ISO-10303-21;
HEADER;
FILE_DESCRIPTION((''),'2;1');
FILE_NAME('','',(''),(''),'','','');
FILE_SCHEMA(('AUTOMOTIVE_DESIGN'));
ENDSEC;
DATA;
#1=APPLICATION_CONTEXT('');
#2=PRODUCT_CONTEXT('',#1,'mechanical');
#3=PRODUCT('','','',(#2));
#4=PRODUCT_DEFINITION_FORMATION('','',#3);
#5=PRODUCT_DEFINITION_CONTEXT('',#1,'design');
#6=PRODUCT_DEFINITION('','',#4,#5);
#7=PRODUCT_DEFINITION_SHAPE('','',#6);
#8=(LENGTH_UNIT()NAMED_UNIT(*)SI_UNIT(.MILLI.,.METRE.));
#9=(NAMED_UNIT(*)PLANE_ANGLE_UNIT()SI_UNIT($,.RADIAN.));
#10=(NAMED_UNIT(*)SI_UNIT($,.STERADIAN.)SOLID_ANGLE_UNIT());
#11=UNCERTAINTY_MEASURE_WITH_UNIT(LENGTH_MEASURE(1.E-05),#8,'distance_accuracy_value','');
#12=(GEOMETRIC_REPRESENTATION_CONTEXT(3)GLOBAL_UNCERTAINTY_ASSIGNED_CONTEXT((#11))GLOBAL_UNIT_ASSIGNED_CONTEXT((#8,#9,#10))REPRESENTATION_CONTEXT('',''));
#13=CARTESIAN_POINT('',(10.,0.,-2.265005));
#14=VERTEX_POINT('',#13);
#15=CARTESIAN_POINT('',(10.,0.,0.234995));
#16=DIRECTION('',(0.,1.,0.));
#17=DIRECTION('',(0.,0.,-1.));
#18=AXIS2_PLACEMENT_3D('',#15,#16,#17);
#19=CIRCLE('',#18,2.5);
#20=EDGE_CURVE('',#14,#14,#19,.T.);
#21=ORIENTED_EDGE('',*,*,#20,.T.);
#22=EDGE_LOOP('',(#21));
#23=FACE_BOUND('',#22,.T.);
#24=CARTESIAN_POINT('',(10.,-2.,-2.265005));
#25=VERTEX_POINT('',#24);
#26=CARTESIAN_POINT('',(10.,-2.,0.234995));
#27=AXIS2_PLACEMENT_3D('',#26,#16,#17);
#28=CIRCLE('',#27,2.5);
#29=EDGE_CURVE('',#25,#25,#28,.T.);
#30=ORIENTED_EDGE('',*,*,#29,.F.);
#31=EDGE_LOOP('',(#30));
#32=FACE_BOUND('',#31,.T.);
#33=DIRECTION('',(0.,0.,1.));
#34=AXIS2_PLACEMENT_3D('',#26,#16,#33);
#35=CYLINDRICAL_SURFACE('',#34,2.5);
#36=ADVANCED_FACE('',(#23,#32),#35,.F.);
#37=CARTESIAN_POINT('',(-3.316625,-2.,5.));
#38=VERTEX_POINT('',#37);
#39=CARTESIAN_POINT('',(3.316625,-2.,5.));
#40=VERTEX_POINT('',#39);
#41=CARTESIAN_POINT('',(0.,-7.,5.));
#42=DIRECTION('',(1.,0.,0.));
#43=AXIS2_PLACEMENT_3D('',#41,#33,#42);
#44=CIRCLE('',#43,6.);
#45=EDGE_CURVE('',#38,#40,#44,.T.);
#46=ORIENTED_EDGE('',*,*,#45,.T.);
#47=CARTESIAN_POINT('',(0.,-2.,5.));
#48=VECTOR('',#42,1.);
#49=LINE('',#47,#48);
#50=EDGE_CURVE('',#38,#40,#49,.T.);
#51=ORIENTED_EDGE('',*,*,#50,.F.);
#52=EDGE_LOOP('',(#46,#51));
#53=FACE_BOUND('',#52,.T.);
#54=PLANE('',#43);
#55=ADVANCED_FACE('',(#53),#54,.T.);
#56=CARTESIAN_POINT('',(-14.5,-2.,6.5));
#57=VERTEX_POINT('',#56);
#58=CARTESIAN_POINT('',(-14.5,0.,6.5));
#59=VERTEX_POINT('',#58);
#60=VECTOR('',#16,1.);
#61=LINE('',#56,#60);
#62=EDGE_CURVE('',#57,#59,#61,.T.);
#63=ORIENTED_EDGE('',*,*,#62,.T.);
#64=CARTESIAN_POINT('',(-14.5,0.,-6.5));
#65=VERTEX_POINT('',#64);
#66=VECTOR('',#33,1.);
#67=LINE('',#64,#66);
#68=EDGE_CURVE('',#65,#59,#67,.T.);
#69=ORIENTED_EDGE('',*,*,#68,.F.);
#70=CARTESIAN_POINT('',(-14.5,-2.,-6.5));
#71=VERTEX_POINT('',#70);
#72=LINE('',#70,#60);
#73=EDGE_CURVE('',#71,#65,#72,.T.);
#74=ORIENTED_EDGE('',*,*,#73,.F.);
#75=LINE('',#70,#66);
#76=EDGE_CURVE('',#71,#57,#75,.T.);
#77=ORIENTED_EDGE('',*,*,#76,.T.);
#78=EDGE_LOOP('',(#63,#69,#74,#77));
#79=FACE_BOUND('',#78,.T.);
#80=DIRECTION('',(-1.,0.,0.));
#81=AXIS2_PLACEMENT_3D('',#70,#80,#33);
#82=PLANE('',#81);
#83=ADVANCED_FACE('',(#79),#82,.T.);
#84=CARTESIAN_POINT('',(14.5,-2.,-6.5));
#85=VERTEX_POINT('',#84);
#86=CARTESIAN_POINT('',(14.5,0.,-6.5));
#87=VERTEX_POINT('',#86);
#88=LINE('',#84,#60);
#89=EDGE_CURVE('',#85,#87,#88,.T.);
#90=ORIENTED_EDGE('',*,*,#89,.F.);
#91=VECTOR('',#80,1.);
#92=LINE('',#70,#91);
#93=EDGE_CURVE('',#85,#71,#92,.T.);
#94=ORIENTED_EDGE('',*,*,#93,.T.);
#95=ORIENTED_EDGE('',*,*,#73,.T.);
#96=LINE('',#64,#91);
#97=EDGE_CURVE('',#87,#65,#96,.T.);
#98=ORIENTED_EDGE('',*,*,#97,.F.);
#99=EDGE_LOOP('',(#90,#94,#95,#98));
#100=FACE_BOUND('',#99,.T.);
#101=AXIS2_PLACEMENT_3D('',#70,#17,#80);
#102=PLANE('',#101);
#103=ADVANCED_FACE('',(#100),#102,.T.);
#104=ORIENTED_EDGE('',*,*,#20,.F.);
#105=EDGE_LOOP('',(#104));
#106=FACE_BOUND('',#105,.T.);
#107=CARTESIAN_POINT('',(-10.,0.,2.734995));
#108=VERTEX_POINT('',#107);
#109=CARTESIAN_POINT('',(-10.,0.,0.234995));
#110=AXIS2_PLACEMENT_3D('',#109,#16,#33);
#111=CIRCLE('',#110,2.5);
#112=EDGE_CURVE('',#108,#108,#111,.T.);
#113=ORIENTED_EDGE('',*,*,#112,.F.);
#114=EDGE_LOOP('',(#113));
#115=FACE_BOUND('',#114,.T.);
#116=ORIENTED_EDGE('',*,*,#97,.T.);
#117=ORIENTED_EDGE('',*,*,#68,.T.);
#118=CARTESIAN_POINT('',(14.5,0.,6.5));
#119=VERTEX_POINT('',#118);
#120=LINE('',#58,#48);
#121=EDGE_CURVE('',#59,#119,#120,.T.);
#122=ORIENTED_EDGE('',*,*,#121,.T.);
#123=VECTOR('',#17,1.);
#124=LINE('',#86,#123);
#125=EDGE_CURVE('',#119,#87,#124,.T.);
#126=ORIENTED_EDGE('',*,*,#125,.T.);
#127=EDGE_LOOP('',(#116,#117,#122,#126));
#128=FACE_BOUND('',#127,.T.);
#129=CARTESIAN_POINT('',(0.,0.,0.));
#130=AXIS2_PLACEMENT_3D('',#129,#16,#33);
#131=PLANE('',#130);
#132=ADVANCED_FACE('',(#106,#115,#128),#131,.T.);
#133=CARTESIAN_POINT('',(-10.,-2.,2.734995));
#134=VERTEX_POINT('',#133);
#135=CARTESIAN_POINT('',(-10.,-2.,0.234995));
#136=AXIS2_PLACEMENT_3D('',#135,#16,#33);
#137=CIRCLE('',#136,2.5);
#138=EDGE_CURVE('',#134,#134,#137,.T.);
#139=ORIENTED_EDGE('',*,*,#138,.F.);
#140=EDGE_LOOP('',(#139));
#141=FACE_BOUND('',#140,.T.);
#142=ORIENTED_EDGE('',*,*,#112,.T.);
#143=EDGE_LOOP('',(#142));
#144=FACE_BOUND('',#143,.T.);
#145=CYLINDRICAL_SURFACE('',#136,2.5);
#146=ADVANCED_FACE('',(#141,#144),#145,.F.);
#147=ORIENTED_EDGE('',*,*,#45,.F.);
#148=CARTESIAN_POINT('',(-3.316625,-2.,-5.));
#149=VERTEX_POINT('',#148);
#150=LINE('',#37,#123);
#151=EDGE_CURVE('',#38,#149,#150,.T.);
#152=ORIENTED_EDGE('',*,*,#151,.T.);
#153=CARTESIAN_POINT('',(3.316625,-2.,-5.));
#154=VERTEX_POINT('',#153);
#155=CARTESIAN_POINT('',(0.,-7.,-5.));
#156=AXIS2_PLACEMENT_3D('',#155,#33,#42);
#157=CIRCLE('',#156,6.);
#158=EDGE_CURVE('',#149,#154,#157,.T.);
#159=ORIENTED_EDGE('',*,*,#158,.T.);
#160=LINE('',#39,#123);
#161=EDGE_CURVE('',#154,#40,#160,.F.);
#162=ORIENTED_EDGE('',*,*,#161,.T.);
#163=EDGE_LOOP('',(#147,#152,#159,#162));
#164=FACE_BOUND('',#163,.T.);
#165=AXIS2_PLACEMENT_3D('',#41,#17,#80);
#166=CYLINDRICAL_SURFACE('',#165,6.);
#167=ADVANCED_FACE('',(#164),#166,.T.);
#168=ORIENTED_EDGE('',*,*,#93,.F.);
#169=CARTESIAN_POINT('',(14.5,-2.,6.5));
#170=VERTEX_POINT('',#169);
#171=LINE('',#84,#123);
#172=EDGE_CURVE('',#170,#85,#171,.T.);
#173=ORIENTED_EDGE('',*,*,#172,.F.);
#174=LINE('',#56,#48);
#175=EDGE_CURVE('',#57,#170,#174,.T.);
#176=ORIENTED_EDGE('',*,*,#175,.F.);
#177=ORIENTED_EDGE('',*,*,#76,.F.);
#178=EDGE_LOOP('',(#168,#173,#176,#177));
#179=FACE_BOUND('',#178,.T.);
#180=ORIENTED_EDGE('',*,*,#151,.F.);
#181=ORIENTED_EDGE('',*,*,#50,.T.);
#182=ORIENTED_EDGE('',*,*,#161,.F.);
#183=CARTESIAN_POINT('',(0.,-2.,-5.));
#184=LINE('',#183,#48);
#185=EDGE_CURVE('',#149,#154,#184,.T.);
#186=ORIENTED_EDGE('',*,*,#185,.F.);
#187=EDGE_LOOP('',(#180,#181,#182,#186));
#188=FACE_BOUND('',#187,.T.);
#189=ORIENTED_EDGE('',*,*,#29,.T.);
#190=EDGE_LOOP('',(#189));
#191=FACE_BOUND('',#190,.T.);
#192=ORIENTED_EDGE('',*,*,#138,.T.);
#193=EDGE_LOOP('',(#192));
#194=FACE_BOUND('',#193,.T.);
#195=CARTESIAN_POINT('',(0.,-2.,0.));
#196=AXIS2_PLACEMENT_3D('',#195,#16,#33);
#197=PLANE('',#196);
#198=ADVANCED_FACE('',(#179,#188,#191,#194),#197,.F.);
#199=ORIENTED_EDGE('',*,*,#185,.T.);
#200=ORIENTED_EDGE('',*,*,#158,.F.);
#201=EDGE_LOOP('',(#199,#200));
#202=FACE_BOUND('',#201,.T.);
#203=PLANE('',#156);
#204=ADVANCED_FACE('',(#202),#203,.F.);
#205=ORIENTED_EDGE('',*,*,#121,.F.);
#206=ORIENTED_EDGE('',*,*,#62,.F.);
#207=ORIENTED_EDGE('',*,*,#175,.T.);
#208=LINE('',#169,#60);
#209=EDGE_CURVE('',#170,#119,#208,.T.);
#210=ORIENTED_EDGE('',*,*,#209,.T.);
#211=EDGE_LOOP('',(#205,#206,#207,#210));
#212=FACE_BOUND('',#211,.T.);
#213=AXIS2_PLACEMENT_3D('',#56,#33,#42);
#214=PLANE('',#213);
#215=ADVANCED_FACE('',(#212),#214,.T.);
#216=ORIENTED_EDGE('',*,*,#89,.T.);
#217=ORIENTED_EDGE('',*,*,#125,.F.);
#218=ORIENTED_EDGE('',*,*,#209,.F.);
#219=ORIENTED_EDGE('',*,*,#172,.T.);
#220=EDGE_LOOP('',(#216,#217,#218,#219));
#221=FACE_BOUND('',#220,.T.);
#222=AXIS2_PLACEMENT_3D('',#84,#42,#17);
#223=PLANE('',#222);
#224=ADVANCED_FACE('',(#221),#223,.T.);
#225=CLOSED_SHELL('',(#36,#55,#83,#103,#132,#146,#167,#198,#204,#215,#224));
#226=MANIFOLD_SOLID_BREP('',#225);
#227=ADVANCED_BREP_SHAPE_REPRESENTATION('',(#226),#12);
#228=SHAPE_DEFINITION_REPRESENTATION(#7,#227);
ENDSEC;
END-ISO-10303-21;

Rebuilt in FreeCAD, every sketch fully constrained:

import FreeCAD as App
import Part
import Sketcher

V = App.Vector
Q = App.Units.Quantity

doc = App.newDocument("Part")
body = doc.addObject("PartDesign::Body", "Body")

# Sketch on XZ plane
sketch1 = body.newObject("Sketcher::SketchObject", "Sketch")
sketch1.AttachmentSupport = (doc.getObject("XZ_Plane"), [""])
sketch1.MapMode = "FlatFace"
sketch1.addGeometry([
    Part.LineSegment(V(-14, -6, 0), V(-14, 6, 0)),
    Part.LineSegment(V(-14, 6, 0), V(14, 6, 0)),
    Part.LineSegment(V(14, 6, 0), V(14, -6, 0)),
    Part.LineSegment(V(14, -6, 0), V(-14, -6, 0)),
], False)
sketch1.addConstraint([
    Sketcher.Constraint("Coincident", 0, 2, 1, 1),
    Sketcher.Constraint("Coincident", 1, 2, 2, 1),
    Sketcher.Constraint("Coincident", 2, 2, 3, 1),
    Sketcher.Constraint("Coincident", 3, 2, 0, 1),
    Sketcher.Constraint("Vertical", 0),
    Sketcher.Constraint("Horizontal", 1),
    Sketcher.Constraint("Vertical", 2),
    Sketcher.Constraint("Horizontal", 3),
    Sketcher.Constraint("Symmetric", 0, 2, 2, 2, -1, 1),
    Sketcher.Constraint("DistanceX", 1, 1, 1, 2, Q("29 mm")),
    Sketcher.Constraint("DistanceY", 0, 1, 0, 2, Q("13 mm")),
])
pad1 = body.newObject("PartDesign::Pad", "Pad")
pad1.Profile = sketch1
pad1.Length = 2

# Sketch on XZ plane
sketch2 = body.newObject("Sketcher::SketchObject", "Sketch001")
sketch2.AttachmentSupport = (doc.getObject("XZ_Plane"), [""])
sketch2.MapMode = "FlatFace"
sketch2.addGeometry([
    Part.Circle(V(-10, 0.2, 0), V(0, 0, 1), 2.5),
    Part.Circle(V(10, 0.2, 0), V(0, 0, 1), 2.5),
], False)
sketch2.addConstraint([
    Sketcher.Constraint("Equal", 0, 1),
    Sketcher.Constraint("Symmetric", 0, 3, 1, 3, -2),
    Sketcher.Constraint("Diameter", 0, Q("5 mm")),
    Sketcher.Constraint("DistanceX", 0, 3, -1, 1, Q("10 mm")),
    Sketcher.Constraint("DistanceY", -1, 1, 0, 3, Q("0.234995 mm")),
])
pocket1 = body.newObject("PartDesign::Pocket", "Pocket")
pocket1.Profile = sketch2
pocket1.Type = "ThroughAll"
pocket1.Reversed = True

# Sketch on XY plane
sketch3 = body.newObject("Sketcher::SketchObject", "Sketch002")
sketch3.AttachmentSupport = (doc.getObject("XY_Plane"), [""])
sketch3.MapMode = "FlatFace"
sketch3.addGeometry(Part.Circle(V(0, -7, 0), V(0, 0, 1), 6), False)
sketch3.addConstraint([
    Sketcher.Constraint("PointOnObject", 0, 3, -2),
    Sketcher.Constraint("Diameter", 0, Q("12 mm")),
    Sketcher.Constraint("DistanceY", 0, 3, -1, 1, Q("7 mm")),
])
pad2 = body.newObject("PartDesign::Pad", "Pad001")
pad2.Profile = sketch3
pad2.Length = 10
pad2.Midplane = True

doc.recompute()
